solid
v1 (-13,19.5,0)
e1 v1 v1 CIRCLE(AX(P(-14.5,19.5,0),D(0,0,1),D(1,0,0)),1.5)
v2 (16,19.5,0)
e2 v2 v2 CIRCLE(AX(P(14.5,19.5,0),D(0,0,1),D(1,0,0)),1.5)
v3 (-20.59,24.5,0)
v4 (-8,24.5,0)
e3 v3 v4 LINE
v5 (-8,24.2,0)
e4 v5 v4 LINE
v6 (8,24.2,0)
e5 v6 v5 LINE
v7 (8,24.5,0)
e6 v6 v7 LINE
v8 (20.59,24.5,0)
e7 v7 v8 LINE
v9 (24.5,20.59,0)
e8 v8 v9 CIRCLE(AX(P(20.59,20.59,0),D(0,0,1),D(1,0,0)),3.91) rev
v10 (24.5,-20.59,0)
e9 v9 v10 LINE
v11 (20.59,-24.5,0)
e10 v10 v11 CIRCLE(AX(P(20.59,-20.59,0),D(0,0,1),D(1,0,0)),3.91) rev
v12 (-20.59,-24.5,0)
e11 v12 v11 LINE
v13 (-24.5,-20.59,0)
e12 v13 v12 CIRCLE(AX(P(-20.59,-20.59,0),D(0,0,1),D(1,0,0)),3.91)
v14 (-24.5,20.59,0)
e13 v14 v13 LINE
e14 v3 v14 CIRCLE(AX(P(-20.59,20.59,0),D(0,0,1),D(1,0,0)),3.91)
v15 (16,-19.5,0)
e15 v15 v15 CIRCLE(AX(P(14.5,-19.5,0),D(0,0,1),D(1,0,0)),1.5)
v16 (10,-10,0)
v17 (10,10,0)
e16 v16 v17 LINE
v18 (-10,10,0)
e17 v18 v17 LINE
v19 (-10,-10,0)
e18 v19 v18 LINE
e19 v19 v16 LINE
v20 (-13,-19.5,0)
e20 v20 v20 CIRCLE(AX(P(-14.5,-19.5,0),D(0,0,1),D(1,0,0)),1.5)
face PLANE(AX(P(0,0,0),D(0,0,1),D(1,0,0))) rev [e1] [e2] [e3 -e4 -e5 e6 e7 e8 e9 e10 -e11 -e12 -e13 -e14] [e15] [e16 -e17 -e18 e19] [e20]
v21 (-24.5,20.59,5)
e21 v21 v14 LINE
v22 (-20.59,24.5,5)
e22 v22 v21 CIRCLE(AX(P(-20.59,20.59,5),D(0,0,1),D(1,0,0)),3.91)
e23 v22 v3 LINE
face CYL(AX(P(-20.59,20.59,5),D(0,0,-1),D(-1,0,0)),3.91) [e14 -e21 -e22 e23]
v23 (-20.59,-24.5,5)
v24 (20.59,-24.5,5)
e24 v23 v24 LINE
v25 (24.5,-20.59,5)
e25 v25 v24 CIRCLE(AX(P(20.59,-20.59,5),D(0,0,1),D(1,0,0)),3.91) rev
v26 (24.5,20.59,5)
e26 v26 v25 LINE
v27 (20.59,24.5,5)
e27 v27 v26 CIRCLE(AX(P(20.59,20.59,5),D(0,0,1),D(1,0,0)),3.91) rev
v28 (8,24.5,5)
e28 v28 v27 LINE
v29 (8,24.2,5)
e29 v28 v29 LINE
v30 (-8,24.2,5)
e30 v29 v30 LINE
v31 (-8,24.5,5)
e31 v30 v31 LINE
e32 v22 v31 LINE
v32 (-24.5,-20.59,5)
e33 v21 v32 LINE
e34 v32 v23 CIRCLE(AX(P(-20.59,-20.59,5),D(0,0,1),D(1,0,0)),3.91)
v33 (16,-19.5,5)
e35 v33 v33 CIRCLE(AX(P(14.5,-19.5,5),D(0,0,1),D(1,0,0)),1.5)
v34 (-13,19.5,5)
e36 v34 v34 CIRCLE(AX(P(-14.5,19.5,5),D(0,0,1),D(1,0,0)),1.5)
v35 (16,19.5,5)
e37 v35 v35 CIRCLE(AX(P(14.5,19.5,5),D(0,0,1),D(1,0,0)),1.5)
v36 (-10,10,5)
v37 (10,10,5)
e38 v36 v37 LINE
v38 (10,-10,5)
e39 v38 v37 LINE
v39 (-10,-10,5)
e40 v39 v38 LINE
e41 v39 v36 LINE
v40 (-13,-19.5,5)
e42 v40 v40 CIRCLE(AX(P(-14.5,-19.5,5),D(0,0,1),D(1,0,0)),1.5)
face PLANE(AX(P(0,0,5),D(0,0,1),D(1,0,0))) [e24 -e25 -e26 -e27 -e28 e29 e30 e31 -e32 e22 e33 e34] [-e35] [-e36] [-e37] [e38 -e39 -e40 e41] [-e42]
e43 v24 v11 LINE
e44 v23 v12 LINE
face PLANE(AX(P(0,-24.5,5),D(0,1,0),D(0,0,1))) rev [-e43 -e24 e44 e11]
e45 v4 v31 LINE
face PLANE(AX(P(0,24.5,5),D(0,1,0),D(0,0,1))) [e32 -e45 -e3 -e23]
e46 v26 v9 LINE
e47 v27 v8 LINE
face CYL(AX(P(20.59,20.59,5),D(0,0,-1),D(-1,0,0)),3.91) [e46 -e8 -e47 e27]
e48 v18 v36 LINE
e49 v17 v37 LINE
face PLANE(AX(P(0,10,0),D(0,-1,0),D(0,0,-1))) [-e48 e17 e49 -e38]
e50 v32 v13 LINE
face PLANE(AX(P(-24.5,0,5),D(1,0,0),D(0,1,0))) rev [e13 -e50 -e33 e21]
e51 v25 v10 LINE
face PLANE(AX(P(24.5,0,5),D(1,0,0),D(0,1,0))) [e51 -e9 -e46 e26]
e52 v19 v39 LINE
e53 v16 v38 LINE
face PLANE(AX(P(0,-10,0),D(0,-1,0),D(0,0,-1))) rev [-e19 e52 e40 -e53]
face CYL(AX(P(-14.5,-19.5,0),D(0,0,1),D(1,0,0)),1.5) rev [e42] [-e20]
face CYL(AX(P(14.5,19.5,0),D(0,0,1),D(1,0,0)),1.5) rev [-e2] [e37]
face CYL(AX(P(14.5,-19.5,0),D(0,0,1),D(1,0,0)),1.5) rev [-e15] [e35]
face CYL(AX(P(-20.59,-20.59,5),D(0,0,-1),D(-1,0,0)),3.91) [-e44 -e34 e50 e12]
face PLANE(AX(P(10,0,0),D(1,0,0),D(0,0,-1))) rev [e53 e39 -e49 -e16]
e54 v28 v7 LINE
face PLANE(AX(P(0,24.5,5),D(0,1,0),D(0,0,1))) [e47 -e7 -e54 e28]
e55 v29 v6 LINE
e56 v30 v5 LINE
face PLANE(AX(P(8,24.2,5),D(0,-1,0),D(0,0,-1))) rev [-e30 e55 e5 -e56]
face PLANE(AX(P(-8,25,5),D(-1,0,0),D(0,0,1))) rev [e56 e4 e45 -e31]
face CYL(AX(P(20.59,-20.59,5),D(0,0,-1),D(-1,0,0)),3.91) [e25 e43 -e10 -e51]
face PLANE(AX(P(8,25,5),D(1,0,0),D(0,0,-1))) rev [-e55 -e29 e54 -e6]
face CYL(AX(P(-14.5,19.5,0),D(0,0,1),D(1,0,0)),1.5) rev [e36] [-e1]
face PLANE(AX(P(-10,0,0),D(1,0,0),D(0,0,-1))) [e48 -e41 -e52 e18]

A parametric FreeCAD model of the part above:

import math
import FreeCAD as App
import Part
import Sketcher

V = App.Vector

doc = App.newDocument("Part")
body = doc.addObject("PartDesign::Body", "Body")

sketch1 = body.newObject("Sketcher::SketchObject", "Sketch")
sketch1.AttachmentSupport = (doc.getObject("XY_Plane"), [""])
sketch1.MapMode = "FlatFace"
sketch1.addGeometry(Part.LineSegment(V(20.6, 24.5, 0), V(-20.6, 24.5, 0)), False)
sketch1.addGeometry(Part.ArcOfCircle(Part.Circle(V(-20.6, 20.6, 0), V(0, 0, 1), 3.9), math.radians(90), math.radians(180)), False)
sketch1.addGeometry(Part.LineSegment(V(-24.5, 20.6, 0), V(-24.5, -20.6, 0)), False)
sketch1.addGeometry(Part.ArcOfCircle(Part.Circle(V(-20.6, -20.6, 0), V(0, 0, 1), 3.9), math.radians(-180), math.radians(-90)), False)
sketch1.addGeometry(Part.LineSegment(V(-20.6, -24.5, 0), V(20.6, -24.5, 0)), False)
sketch1.addGeometry(Part.ArcOfCircle(Part.Circle(V(20.6, -20.6, 0), V(0, 0, 1), 3.9), math.radians(-90), math.radians(0)), False)
sketch1.addGeometry(Part.LineSegment(V(24.5, -20.6, 0), V(24.5, 20.6, 0)), False)
sketch1.addGeometry(Part.ArcOfCircle(Part.Circle(V(20.6, 20.6, 0), V(0, 0, 1), 3.9), math.radians(0), math.radians(90)), False)
sketch1.addConstraint(Sketcher.Constraint("Tangent", 0, 2, 1, 1))
sketch1.addConstraint(Sketcher.Constraint("Tangent", 1, 2, 2, 1))
sketch1.addConstraint(Sketcher.Constraint("Tangent", 2, 2, 3, 1))
sketch1.addConstraint(Sketcher.Constraint("Tangent", 3, 2, 4, 1))
sketch1.addConstraint(Sketcher.Constraint("Tangent", 4, 2, 5, 1))
sketch1.addConstraint(Sketcher.Constraint("Tangent", 5, 2, 6, 1))
sketch1.addConstraint(Sketcher.Constraint("Tangent", 6, 2, 7, 1))
sketch1.addConstraint(Sketcher.Constraint("Tangent", 7, 2, 0, 1))
sketch1.addConstraint(Sketcher.Constraint("Horizontal", 0))
sketch1.addConstraint(Sketcher.Constraint("Vertical", 2))
sketch1.addConstraint(Sketcher.Constraint("Horizontal", 4))
sketch1.addConstraint(Sketcher.Constraint("Vertical", 6))
sketch1.addConstraint(Sketcher.Constraint("Equal", 1, 3))
sketch1.addConstraint(Sketcher.Constraint("Equal", 3, 5))
sketch1.addConstraint(Sketcher.Constraint("Equal", 5, 7))
sketch1.addConstraint(Sketcher.Constraint("Symmetric", 1, 3, 5, 3, -1, 1))
sketch1.addConstraint(Sketcher.Constraint("Equal", 4, 2))
sketch1.addConstraint(Sketcher.Constraint("Radius", 1, 3.91))
sketch1.addConstraint(Sketcher.Constraint("DistanceX", 0, 2, 0, 1, 41.18))
pad1 = body.newObject("PartDesign::Pad", "Pad")
pad1.Profile = sketch1
pad1.Length = 5

sketch2 = body.newObject("Sketcher::SketchObject", "Sketch001")
sketch2.AttachmentSupport = (doc.getObject("XY_Plane"), [""])
sketch2.MapMode = "FlatFace"
sketch2.AttachmentOffset = App.Placement(V(0, 0, 5), App.Rotation())
sketch2.addGeometry(Part.LineSegment(V(-10, 10, 0), V(-10, -10, 0)), False)
sketch2.addGeometry(Part.LineSegment(V(-10, -10, 0), V(10, -10, 0)), False)
sketch2.addGeometry(Part.LineSegment(V(10, -10, 0), V(10, 10, 0)), False)
sketch2.addGeometry(Part.LineSegment(V(10, 10, 0), V(-10, 10, 0)), False)
sketch2.addConstraint(Sketcher.Constraint("Coincident", 0, 2, 1, 1))
sketch2.addConstraint(Sketcher.Constraint("Coincident", 1, 2, 2, 1))
sketch2.addConstraint(Sketcher.Constraint("Coincident", 2, 2, 3, 1))
sketch2.addConstraint(Sketcher.Constraint("Coincident", 3, 2, 0, 1))
sketch2.addConstraint(Sketcher.Constraint("Vertical", 0))
sketch2.addConstraint(Sketcher.Constraint("Horizontal", 1))
sketch2.addConstraint(Sketcher.Constraint("Vertical", 2))
sketch2.addConstraint(Sketcher.Constraint("Horizontal", 3))
sketch2.addConstraint(Sketcher.Constraint("Symmetric", 0, 2, 2, 2, -1, 1))
sketch2.addConstraint(Sketcher.Constraint("Equal", 3, 0))
sketch2.addConstraint(Sketcher.Constraint("DistanceX", 1, 1, 1, 2, 20.0))
pocket1 = body.newObject("PartDesign::Pocket", "Pocket")
pocket1.Profile = sketch2
pocket1.Length = 5

sketch3 = body.newObject("Sketcher::SketchObject", "Sketch002")
sketch3.AttachmentSupport = (doc.getObject("XY_Plane"), [""])
sketch3.MapMode = "FlatFace"
sketch3.AttachmentOffset = App.Placement(V(0, 0, 5), App.Rotation())
sketch3.addGeometry(Part.Circle(V(-14.5, 19.5, 0), V(0, 0, 1), 1.5), False)
sketch3.addGeometry(Part.Circle(V(14.5, 19.5, 0), V(0, 0, 1), 1.5), False)
sketch3.addGeometry(Part.Circle(V(-14.5, -19.5, 0), V(0, 0, 1), 1.5), False)
sketch3.addGeometry(Part.Circle(V(14.5, -19.5, 0), V(0, 0, 1), 1.5), False)
sketch3.addConstraint(Sketcher.Constraint("Equal", 0, 1))
sketch3.addConstraint(Sketcher.Constraint("Equal", 1, 2))
sketch3.addConstraint(Sketcher.Constraint("Equal", 2, 3))
sketch3.addConstraint(Sketcher.Constraint("Symmetric", 1, 3, 2, 3, -1, 1))
sketch3.addConstraint(Sketcher.Constraint("Symmetric", 0, 3, 3, 3, -1, 1))
sketch3.addConstraint(Sketcher.Constraint("Symmetric", 0, 3, 1, 3, -2))
sketch3.addConstraint(Sketcher.Constraint("Diameter", 0, 3.0))
sketch3.addConstraint(Sketcher.Constraint("DistanceX", 0, 3, 1, 3, 29.0))
sketch3.addConstraint(Sketcher.Constraint("DistanceY", 2, 3, 0, 3, 39.0))
pocket2 = body.newObject("PartDesign::Pocket", "Pocket001")
pocket2.Profile = sketch3
pocket2.Type = "ThroughAll"

sketch4 = body.newObject("Sketcher::SketchObject", "Sketch003")
sketch4.AttachmentSupport = (doc.getObject("XY_Plane"), [""])
sketch4.MapMode = "FlatFace"
sketch4.addGeometry(Part.LineSegment(V(8, 25, 0), V(8, 24.2, 0)), False)
sketch4.addGeometry(Part.LineSegment(V(8, 24.2, 0), V(-8, 24.2, 0)), False)
sketch4.addGeometry(Part.LineSegment(V(-8, 24.2, 0), V(-8, 25, 0)), False)
sketch4.addGeometry(Part.LineSegment(V(-8, 25, 0), V(8, 25, 0)), False)
sketch4.addConstraint(Sketcher.Constraint("Coincident", 0, 2, 1, 1))
sketch4.addConstraint(Sketcher.Constraint("Coincident", 1, 2, 2, 1))
sketch4.addConstraint(Sketcher.Constraint("Coincident", 2, 2, 3, 1))
sketch4.addConstraint(Sketcher.Constraint("Coincident", 3, 2, 0, 1))
sketch4.addConstraint(Sketcher.Constraint("Vertical", 0))
sketch4.addConstraint(Sketcher.Constraint("Horizontal", 1))
sketch4.addConstraint(Sketcher.Constraint("Vertical", 2))
sketch4.addConstraint(Sketcher.Constraint("Horizontal", 3))
sketch4.addConstraint(Sketcher.Constraint("DistanceX", 1, 2, 1, 1, 16.0))
sketch4.addConstraint(Sketcher.Constraint("DistanceY", 0, 2, 0, 1, 0.8))
sketch4.addConstraint(Sketcher.Constraint("DistanceX", -1, 1, 0, 2, 8.0))
sketch4.addConstraint(Sketcher.Constraint("DistanceY", -1, 1, 2, 2, 25.0))
pocket3 = body.newObject("PartDesign::Pocket", "Pocket002")
pocket3.Profile = sketch4
pocket3.Type = "ThroughAll"
pocket3.Reversed = True

doc.recompute()
